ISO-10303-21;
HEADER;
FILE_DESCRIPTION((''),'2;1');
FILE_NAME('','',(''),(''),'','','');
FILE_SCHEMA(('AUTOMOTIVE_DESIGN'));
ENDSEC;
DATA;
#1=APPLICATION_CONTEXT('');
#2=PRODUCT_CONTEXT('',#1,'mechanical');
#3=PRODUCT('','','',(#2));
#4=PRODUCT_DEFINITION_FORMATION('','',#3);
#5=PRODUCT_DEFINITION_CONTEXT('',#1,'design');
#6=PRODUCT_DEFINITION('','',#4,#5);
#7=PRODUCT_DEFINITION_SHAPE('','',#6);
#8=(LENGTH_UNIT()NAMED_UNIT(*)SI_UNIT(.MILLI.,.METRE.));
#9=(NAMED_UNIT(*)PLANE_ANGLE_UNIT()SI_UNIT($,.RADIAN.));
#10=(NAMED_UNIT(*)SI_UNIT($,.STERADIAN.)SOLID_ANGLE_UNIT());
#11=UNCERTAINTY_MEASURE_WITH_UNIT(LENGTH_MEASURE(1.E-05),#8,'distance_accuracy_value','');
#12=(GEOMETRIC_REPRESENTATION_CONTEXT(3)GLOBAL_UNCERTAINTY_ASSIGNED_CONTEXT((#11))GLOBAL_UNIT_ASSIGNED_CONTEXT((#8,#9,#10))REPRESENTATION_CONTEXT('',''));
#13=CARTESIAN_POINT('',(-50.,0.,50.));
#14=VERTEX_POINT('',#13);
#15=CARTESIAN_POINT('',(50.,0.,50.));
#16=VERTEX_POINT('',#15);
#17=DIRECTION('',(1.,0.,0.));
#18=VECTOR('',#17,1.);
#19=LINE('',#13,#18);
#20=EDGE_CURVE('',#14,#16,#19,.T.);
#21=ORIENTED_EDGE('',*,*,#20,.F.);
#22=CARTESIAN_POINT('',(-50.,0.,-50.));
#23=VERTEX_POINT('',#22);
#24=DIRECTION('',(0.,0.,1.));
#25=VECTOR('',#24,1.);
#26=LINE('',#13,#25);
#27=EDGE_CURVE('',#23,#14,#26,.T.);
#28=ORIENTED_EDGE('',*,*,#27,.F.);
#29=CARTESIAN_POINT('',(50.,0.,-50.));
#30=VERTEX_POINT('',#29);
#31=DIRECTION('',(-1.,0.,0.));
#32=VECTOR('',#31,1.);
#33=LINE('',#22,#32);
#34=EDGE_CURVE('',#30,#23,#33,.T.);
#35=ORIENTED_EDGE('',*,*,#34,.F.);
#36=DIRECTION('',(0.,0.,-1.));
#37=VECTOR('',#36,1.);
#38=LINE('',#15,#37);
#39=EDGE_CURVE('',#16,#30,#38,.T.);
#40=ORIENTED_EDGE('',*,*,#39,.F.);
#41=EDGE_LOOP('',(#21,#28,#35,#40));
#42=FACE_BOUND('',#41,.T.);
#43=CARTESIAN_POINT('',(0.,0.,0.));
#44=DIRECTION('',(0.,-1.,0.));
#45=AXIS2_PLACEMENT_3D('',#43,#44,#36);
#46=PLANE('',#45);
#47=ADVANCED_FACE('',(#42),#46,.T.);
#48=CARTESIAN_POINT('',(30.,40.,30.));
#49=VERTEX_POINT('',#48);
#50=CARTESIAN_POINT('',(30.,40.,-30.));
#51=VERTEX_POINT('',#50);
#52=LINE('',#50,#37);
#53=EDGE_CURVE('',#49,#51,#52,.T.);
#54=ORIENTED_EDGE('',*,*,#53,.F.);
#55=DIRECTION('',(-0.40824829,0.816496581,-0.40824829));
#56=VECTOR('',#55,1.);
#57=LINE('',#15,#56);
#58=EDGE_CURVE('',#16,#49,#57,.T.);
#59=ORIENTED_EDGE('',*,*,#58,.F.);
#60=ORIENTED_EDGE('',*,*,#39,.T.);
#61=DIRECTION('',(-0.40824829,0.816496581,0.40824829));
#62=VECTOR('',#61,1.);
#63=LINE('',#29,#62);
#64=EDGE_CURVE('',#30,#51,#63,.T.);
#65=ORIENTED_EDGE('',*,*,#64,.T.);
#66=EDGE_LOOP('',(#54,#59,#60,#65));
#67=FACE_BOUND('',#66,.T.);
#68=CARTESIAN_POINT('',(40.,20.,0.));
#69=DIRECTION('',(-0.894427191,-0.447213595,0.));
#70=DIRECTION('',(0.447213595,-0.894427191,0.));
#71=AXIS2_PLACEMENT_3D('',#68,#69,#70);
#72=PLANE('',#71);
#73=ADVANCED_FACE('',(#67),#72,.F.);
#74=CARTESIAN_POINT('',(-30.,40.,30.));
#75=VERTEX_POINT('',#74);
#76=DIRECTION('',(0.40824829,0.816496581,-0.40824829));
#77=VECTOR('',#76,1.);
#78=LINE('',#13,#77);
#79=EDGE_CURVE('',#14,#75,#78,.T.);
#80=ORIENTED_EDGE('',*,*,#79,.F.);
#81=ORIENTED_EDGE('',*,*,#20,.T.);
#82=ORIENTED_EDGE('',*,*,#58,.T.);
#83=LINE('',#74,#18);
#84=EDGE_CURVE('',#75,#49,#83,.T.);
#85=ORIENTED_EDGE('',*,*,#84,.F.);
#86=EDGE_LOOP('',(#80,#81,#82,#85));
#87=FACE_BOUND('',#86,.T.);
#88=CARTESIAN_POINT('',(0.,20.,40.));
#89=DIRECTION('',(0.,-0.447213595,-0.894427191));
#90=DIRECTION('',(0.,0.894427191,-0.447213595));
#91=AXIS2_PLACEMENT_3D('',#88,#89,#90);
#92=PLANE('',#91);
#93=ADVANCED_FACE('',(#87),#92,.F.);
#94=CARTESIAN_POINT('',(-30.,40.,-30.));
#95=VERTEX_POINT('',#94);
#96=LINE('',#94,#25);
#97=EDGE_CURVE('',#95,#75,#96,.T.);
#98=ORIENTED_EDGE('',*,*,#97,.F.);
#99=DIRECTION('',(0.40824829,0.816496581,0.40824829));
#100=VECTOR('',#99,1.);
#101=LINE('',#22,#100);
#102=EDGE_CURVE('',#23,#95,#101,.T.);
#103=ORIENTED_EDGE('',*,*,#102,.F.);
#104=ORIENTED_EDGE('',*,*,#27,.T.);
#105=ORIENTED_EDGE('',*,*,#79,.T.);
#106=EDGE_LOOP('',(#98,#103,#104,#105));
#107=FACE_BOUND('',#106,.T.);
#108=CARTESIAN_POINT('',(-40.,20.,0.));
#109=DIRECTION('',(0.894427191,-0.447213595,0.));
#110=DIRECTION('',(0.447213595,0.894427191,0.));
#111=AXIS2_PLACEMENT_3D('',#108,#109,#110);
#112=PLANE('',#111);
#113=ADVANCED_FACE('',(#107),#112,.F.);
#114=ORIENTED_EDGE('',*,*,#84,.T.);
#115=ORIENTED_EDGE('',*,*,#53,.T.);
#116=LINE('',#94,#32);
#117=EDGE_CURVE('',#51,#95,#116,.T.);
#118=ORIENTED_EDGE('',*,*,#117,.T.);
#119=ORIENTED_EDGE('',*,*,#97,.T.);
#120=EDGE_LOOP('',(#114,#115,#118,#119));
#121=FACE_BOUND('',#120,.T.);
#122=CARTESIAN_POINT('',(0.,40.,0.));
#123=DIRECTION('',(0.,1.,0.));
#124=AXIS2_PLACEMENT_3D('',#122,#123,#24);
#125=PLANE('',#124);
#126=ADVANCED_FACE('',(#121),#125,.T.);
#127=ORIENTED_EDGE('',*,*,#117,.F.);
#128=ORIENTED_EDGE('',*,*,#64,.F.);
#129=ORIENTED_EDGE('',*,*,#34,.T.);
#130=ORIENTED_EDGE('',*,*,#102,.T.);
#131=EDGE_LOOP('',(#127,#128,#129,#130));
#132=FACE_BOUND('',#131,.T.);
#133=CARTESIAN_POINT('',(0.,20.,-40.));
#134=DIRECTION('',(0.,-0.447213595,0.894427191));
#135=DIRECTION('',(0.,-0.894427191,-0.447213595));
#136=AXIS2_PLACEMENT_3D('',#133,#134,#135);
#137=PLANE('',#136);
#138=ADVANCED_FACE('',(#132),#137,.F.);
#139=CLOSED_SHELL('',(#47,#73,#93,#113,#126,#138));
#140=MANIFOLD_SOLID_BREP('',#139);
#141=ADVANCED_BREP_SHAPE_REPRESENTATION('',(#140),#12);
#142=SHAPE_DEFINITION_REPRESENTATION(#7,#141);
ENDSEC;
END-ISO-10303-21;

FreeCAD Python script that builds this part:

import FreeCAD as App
import Part
import Sketcher
from FreeCAD import Vector
Q = App.Units.Quantity

doc = App.newDocument("Part")
body = doc.addObject("PartDesign::Body", "Body")

sketch1 = body.newObject("Sketcher::SketchObject", "Sketch")
sketch1.AttachmentSupport = (doc.getObject("XZ_Plane"), [""])
sketch1.MapMode = "FlatFace"
sketch1.addGeometry([
    Part.LineSegment(Vector(-50, 50, 0), Vector(50, 50, 0)),
    Part.LineSegment(Vector(50, 50, 0), Vector(50, -50, 0)),
    Part.LineSegment(Vector(50, -50, 0), Vector(-50, -50, 0)),
    Part.LineSegment(Vector(-50, -50, 0), Vector(-50, 50, 0)),
], False)
sketch1.addConstraint([
    Sketcher.Constraint("Coincident", 0, 2, 1, 1),
    Sketcher.Constraint("Coincident", 1, 2, 2, 1),
    Sketcher.Constraint("Coincident", 2, 2, 3, 1),
    Sketcher.Constraint("Coincident", 3, 2, 0, 1),
    Sketcher.Constraint("Horizontal", 0),
    Sketcher.Constraint("Vertical", 1),
    Sketcher.Constraint("Horizontal", 2),
    Sketcher.Constraint("Vertical", 3),
    Sketcher.Constraint("Symmetric", 0, 2, 2, 2, -1, 1),
    Sketcher.Constraint("Equal", 2, 1),
    Sketcher.Constraint("DistanceX", 0, 1, 0, 2, Q("100 mm")),
])

sketch2 = body.newObject("Sketcher::SketchObject", "Sketch001")
sketch2.AttachmentSupport = (doc.getObject("XZ_Plane"), [""])
sketch2.MapMode = "FlatFace"
sketch2.AttachmentOffset = App.Placement(Vector(0, 0, -40), App.Rotation())
sketch2.addGeometry([
    Part.LineSegment(Vector(30, -30, 0), Vector(-30, -30, 0)),
    Part.LineSegment(Vector(-30, -30, 0), Vector(-30, 30, 0)),
    Part.LineSegment(Vector(-30, 30, 0), Vector(30, 30, 0)),
    Part.LineSegment(Vector(30, 30, 0), Vector(30, -30, 0)),
], False)
sketch2.addConstraint([
    Sketcher.Constraint("Coincident", 0, 2, 1, 1),
    Sketcher.Constraint("Coincident", 1, 2, 2, 1),
    Sketcher.Constraint("Coincident", 2, 2, 3, 1),
    Sketcher.Constraint("Coincident", 3, 2, 0, 1),
    Sketcher.Constraint("Horizontal", 0),
    Sketcher.Constraint("Vertical", 1),
    Sketcher.Constraint("Horizontal", 2),
    Sketcher.Constraint("Vertical", 3),
    Sketcher.Constraint("Symmetric", 0, 2, 2, 2, -1, 1),
    Sketcher.Constraint("Equal", 2, 1),
    Sketcher.Constraint("DistanceX", 0, 2, 0, 1, Q("60 mm")),
])

additiveloft = body.newObject("PartDesign::AdditiveLoft", "AdditiveLoft")
additiveloft.Profile = sketch1
additiveloft.Sections = [sketch2]

doc.recompute()
